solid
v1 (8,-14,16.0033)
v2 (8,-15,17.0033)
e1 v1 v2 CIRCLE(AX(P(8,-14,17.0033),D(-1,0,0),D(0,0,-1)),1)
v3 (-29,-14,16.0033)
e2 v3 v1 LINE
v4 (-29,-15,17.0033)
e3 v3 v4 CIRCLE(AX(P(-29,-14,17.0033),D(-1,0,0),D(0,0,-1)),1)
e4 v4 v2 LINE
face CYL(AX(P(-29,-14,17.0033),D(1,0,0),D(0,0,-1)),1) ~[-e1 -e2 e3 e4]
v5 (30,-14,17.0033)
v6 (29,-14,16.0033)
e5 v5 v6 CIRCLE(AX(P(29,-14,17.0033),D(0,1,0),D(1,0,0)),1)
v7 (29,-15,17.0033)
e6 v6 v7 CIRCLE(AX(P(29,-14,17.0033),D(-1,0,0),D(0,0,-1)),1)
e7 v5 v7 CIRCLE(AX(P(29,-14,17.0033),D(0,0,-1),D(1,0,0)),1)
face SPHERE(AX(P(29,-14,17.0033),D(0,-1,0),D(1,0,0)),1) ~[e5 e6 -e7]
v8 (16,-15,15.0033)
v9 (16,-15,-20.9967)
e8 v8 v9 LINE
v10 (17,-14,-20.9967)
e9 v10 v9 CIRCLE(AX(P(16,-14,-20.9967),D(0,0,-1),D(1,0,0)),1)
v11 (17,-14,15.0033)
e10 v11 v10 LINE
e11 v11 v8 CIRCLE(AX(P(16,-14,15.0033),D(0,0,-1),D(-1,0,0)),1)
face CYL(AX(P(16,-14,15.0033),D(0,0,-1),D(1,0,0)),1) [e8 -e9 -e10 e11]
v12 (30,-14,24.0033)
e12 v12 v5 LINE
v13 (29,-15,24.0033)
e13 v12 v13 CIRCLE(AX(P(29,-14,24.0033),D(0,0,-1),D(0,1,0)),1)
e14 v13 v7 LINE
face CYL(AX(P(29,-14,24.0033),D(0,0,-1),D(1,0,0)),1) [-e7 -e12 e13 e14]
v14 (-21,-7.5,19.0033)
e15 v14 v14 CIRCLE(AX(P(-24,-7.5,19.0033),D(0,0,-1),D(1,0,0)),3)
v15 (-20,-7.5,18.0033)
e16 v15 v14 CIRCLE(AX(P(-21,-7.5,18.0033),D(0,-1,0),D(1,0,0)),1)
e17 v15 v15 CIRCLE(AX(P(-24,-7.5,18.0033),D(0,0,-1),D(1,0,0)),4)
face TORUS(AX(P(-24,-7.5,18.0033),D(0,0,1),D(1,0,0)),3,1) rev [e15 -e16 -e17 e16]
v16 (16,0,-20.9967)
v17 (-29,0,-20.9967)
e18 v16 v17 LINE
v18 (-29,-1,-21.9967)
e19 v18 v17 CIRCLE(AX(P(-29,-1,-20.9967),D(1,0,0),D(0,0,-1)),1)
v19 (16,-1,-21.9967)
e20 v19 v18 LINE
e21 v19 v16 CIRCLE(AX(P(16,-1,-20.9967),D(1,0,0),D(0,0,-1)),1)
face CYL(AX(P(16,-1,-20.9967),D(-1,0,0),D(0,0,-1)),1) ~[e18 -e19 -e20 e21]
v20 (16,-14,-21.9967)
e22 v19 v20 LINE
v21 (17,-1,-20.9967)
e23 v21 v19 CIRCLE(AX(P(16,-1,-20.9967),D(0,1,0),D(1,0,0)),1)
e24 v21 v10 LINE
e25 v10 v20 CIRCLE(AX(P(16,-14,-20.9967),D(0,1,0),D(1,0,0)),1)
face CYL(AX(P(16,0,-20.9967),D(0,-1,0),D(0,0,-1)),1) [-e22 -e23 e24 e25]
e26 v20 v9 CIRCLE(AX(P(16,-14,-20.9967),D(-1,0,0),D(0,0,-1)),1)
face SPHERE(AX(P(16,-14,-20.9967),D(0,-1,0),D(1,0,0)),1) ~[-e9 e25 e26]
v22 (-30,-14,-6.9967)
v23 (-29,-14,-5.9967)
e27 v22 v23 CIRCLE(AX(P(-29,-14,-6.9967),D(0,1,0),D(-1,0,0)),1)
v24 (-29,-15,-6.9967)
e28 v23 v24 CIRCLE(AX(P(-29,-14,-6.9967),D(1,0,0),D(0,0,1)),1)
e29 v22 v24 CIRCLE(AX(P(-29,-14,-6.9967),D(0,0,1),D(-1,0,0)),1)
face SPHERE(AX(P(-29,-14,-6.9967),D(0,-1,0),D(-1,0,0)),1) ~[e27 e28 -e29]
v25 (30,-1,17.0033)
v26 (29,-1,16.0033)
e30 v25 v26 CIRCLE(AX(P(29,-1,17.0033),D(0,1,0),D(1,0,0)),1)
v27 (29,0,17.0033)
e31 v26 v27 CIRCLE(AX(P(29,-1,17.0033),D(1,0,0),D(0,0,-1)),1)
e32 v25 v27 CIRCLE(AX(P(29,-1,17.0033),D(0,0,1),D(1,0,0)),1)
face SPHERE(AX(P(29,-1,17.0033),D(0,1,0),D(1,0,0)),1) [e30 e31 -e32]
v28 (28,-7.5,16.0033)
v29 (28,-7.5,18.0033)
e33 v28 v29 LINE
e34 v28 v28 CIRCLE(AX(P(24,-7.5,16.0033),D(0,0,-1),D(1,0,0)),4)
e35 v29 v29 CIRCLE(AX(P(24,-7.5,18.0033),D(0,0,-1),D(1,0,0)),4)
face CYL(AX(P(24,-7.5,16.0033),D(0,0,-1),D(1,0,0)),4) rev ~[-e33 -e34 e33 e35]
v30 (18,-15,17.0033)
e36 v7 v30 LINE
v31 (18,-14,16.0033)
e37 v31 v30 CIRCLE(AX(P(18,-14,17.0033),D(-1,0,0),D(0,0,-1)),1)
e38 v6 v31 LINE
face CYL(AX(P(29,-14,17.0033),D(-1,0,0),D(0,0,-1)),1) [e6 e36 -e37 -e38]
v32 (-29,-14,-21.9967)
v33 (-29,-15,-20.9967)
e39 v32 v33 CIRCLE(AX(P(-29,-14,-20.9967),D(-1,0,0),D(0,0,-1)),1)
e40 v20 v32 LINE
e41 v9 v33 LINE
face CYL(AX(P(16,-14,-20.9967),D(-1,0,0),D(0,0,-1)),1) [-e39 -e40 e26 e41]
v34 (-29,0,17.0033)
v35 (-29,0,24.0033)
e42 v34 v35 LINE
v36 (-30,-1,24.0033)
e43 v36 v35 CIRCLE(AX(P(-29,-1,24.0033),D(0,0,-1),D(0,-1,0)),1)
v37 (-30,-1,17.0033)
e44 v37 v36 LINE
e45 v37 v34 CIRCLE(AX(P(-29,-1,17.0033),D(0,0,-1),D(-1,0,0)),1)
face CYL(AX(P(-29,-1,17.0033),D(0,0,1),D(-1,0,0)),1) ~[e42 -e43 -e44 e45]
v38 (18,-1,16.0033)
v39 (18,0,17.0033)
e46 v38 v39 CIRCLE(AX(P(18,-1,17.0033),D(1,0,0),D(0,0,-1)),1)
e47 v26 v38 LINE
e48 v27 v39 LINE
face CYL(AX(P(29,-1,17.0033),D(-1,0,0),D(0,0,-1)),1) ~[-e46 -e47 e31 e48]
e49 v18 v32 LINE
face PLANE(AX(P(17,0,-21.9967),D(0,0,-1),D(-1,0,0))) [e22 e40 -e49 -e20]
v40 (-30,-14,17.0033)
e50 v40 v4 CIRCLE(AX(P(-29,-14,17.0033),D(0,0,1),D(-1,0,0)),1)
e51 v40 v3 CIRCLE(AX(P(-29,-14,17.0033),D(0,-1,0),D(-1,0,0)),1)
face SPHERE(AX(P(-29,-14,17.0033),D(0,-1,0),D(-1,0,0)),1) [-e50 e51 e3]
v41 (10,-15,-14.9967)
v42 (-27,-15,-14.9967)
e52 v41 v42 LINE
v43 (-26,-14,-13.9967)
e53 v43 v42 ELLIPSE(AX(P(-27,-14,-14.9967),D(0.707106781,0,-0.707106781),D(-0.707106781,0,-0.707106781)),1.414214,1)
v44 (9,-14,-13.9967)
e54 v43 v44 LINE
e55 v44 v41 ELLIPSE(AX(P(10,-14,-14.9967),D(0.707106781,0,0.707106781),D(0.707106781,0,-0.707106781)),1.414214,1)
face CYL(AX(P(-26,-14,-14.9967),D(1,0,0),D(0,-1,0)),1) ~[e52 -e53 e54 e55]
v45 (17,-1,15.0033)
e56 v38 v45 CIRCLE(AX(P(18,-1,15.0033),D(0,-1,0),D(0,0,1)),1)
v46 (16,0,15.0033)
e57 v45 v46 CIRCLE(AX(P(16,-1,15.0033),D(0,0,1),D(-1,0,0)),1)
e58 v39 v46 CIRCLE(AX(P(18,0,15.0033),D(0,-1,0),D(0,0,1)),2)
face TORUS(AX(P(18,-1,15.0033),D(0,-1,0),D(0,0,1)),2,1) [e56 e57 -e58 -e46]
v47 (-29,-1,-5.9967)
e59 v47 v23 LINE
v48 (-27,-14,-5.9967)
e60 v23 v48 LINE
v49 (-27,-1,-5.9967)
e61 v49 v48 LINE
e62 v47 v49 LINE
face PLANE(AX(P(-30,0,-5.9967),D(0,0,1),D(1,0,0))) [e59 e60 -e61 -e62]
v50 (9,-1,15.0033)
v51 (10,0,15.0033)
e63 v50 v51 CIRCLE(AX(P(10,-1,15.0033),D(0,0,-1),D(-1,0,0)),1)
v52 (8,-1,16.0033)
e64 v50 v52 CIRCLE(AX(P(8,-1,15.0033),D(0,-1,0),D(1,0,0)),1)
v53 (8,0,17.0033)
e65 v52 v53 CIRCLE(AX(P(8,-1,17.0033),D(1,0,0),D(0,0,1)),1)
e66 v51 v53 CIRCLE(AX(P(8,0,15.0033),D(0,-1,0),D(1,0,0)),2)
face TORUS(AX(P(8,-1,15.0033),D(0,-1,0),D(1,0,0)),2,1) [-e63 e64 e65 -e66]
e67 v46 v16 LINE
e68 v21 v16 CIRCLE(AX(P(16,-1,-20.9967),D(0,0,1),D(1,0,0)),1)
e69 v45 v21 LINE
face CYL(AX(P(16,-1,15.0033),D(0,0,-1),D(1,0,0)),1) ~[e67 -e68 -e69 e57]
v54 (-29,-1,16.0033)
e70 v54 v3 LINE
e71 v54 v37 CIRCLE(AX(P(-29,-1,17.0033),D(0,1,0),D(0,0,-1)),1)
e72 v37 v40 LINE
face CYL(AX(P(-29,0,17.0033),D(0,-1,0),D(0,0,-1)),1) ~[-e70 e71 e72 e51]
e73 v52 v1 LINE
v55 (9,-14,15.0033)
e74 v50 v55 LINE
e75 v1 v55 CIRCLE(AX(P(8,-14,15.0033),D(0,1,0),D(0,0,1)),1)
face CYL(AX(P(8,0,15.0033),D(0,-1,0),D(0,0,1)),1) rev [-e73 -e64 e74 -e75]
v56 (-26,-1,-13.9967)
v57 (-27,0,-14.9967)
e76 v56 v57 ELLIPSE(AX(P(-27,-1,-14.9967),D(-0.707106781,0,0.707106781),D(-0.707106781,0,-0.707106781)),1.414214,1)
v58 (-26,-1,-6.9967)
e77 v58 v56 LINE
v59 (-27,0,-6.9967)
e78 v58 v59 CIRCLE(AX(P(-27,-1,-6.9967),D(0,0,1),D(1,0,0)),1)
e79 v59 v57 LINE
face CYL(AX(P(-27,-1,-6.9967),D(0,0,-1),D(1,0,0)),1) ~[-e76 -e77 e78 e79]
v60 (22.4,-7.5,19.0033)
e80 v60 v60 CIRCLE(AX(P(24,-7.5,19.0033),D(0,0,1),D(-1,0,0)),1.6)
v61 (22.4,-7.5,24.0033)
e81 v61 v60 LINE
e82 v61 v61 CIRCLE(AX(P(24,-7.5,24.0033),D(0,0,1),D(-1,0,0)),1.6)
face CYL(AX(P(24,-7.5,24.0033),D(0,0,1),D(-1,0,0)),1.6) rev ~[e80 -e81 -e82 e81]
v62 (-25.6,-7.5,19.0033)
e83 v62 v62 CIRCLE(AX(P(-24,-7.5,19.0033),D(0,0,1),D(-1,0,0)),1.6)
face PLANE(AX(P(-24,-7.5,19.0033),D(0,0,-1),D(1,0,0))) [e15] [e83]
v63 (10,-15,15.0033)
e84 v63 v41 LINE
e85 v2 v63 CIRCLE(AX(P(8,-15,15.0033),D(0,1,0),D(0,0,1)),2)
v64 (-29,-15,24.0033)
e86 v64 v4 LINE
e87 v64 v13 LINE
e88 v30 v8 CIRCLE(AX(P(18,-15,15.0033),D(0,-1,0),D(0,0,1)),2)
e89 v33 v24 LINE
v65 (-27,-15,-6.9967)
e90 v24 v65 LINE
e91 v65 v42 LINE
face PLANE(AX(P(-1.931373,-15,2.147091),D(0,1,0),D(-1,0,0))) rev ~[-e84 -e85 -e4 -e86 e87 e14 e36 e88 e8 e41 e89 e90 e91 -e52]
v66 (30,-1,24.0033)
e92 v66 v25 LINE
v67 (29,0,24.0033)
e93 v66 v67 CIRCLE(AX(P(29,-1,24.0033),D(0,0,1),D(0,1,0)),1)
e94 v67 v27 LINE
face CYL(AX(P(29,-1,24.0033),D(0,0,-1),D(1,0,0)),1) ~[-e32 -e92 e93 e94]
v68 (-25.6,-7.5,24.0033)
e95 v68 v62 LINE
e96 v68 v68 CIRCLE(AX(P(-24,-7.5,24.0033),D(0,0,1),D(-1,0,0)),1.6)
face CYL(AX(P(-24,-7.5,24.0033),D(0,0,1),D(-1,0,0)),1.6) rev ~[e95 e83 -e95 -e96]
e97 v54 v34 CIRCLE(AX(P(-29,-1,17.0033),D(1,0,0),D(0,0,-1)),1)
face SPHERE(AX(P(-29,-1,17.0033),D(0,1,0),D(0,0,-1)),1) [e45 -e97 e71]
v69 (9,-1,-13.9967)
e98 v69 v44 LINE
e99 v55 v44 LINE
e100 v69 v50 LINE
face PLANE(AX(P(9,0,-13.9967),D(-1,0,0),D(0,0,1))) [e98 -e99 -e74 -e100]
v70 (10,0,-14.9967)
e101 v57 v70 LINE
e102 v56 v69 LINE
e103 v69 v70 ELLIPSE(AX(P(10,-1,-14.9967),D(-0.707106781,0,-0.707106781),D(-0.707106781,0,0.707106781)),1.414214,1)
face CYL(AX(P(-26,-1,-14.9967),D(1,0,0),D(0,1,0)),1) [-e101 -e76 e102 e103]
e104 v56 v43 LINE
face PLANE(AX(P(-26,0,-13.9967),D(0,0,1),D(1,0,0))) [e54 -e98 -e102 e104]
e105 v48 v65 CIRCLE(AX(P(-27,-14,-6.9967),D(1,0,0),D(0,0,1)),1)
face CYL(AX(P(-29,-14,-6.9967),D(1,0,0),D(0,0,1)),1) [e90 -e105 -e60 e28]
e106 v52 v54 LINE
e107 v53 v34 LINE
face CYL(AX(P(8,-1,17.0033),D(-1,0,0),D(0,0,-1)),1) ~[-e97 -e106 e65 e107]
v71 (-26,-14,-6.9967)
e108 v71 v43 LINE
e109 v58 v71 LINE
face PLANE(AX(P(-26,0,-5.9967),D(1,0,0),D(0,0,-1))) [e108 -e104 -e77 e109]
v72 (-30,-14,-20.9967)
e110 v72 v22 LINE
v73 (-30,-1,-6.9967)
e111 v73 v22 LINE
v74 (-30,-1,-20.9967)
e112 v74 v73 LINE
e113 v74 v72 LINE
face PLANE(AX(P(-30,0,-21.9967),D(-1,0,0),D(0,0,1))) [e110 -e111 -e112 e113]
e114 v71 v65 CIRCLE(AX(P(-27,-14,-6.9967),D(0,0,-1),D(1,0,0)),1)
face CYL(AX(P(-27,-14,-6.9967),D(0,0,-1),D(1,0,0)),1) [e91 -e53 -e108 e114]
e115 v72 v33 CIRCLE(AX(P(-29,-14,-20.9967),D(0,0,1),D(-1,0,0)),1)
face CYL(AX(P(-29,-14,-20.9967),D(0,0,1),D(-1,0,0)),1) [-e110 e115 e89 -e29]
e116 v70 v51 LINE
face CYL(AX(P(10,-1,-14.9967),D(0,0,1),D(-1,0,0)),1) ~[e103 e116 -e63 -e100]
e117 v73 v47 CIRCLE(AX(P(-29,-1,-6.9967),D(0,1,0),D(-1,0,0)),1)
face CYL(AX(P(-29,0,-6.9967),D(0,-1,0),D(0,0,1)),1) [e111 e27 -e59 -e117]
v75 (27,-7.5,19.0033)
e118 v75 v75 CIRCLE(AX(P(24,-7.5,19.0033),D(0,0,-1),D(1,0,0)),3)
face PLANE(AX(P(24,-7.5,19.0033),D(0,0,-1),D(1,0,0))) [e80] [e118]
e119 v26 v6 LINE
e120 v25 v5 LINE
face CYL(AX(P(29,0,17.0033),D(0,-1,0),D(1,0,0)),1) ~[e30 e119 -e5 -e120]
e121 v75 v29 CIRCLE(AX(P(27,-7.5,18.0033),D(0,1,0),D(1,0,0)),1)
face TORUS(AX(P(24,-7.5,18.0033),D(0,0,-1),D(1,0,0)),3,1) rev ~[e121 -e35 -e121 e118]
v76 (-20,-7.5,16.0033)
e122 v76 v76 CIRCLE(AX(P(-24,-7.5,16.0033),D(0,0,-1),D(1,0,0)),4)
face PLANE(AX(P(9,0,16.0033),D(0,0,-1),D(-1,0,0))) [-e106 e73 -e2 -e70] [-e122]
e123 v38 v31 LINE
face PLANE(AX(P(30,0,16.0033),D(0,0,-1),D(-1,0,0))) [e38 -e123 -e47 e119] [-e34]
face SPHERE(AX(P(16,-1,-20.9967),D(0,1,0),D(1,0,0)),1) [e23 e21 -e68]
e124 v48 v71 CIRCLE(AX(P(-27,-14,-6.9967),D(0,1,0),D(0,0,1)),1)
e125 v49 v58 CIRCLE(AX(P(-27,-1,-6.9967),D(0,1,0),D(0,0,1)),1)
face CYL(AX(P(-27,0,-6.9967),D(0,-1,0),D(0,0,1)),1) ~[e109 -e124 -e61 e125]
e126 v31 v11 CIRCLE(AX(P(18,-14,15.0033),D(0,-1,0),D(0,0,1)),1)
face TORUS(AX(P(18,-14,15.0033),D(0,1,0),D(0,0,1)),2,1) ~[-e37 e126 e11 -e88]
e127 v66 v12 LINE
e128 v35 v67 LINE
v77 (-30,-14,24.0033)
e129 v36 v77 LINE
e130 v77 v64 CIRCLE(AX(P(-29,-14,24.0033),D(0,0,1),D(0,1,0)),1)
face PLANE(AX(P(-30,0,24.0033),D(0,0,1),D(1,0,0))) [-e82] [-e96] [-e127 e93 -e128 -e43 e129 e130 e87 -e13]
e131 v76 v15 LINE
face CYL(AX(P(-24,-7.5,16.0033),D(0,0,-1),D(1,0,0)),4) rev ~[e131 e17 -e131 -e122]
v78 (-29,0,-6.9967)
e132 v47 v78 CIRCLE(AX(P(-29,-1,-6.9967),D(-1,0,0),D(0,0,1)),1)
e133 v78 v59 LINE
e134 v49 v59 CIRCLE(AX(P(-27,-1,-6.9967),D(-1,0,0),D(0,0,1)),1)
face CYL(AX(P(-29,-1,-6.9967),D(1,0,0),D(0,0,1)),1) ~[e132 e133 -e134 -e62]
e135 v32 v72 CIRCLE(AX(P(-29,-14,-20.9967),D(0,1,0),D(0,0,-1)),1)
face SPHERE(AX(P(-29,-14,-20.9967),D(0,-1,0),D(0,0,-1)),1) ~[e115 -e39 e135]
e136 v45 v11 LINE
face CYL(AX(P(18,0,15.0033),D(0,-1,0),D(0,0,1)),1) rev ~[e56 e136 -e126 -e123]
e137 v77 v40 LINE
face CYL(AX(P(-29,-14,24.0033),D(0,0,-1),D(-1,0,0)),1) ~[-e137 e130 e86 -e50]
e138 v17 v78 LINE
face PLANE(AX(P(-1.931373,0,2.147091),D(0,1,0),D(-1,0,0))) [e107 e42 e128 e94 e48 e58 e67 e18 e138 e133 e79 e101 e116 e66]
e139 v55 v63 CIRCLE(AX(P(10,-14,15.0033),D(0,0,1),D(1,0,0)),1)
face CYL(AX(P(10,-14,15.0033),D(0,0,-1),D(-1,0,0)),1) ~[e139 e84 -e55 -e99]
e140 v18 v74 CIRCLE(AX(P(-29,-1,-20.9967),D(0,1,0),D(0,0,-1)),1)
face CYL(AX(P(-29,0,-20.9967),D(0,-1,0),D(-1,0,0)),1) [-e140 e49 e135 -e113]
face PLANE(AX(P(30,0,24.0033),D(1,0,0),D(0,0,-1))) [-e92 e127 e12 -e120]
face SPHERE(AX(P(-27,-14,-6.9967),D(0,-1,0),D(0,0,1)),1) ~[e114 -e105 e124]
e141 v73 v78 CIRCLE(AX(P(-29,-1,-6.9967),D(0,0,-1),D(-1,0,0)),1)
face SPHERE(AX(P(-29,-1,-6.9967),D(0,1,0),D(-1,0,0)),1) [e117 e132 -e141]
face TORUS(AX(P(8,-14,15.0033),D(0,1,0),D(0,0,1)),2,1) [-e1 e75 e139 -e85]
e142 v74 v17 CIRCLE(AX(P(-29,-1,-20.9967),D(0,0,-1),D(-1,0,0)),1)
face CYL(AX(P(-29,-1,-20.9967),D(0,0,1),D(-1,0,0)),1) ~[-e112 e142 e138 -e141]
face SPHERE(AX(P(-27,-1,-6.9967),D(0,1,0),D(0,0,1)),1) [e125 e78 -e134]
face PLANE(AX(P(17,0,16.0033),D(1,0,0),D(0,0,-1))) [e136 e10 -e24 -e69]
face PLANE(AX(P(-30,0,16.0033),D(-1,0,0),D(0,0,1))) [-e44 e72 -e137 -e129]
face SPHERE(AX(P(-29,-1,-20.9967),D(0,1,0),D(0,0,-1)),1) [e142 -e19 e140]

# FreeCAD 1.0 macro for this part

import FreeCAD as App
import Part
import Sketcher


def edges_at(feature, points):
    """Names of the edges that pass closest to the given points."""
    edges = feature.Shape.Edges
    near = lambda p: min(range(len(edges)), key=lambda i: edges[i].distToShape(Part.Vertex(*p))[0])
    return sorted({f"Edge{near(p) + 1}" for p in points})


def add_polygon(sketch, points):
    """Adds a closed chain of lines whose ends are joined by coincident constraints."""
    first, n = sketch.GeometryCount, len(points)
    for a, b in zip(points, points[1:] + points[:1]):
        sketch.addGeometry(Part.LineSegment(App.Vector(*a, 0), App.Vector(*b, 0)), False)
    for i in range(n):
        sketch.addConstraint(Sketcher.Constraint("Coincident", first + i, 2, first + (i + 1) % n, 1))

doc = App.newDocument("Part")
params = doc.addObject("Spreadsheet::Sheet", "Params")
for row, (alias, value) in enumerate([
    ("sketch1_width", "60 mm"),
    ("sketch1_width2", "39 mm"),
    ("sketch1_width3", "35 mm"),
    ("sketch1_width4", "47 mm"),
    ("sketch1_height", "8 mm"),
    ("pad1_length", "15 mm"),
    ("sketch2_diameter", "3.2 mm"),
    ("pocket1_length", "8 mm"),
    ("sketch3_diameter", "8 mm"),
    ("pocket2_length", "3 mm"),
    ("fillet_radius", "1 mm"),
    ("fillet2_radius", "1 mm"),
    ("fillet3_radius", "1 mm"),
    ("fillet4_radius", "1 mm"),
    ("fillet5_radius", "1 mm"),
    ("fillet6_radius", "1 mm"),
    ("fillet7_radius", "1 mm"),
    ("fillet8_radius", "1 mm"),
    ("fillet9_radius", "1 mm"),
    ("fillet10_radius", "1 mm"),
    ("fillet11_radius", "1 mm"),
    ("fillet12_radius", "1 mm"),
    ("fillet13_radius", "1 mm"),
    ("fillet14_radius", "1 mm"),
    ("fillet15_radius", "1 mm"),
    ("fillet16_radius", "1 mm"),
], start=1):
    params.set(f"A{row}", alias)
    params.set(f"B{row}", "=" + value)
    params.setAlias(f"B{row}", alias)

body = doc.addObject("PartDesign::Body", "Body")

sketch1 = doc.addObject("Sketcher::SketchObject", "Sketch")
body.addObject(sketch1)
sketch1.AttachmentSupport = (doc.XZ_Plane, [""])
sketch1.MapMode = "FlatFace"
add_polygon(sketch1, [(30, 24), (-30, 24), (-30, 16), (9, 16), (9, -14), (-26, -14), (-26, -6), (-30, -6), (-30, -22), (17, -22), (17, 16), (30, 16)])
sketch1.addConstraint([
    Sketcher.Constraint("Horizontal", 0),
    Sketcher.Constraint("Vertical", 1),
    Sketcher.Constraint("Horizontal", 2),
    Sketcher.Constraint("Vertical", 3),
    Sketcher.Constraint("Horizontal", 4),
    Sketcher.Constraint("Vertical", 5),
    Sketcher.Constraint("Horizontal", 6),
    Sketcher.Constraint("Vertical", 7),
    Sketcher.Constraint("Horizontal", 8),
    Sketcher.Constraint("Vertical", 9),
    Sketcher.Constraint("Horizontal", 10),
    Sketcher.Constraint("Vertical", 11),
    Sketcher.Constraint("Symmetric", 1, 2, 10, 2, -2),
    Sketcher.Constraint("Vertical", 1, 2, 6, 2),
    Sketcher.Constraint("Equal", 1, 5),
    Sketcher.Constraint("DistanceX", 0, 2, 0, 1, 60.0),
    Sketcher.Constraint("DistanceX", 2, 1, 2, 2, 39.0),
    Sketcher.Constraint("DistanceX", 4, 2, 4, 1, 35.0),
    Sketcher.Constraint("DistanceX", 8, 1, 8, 2, 47.0),
    Sketcher.Constraint("DistanceY", 1, 2, 1, 1, 8.0),
    Sketcher.Constraint("DistanceY", 3, 2, 3, 1, 30.0),
    Sketcher.Constraint("DistanceY", 7, 2, 7, 1, 16.0),
    Sketcher.Constraint("DistanceY", -1, 1, 0, 2, 24.0033),
])
sketch1.setExpression("Constraints[27]", "Params.sketch1_width")
sketch1.setExpression("Constraints[28]", "Params.sketch1_width2")
sketch1.setExpression("Constraints[29]", "Params.sketch1_width3")
sketch1.setExpression("Constraints[30]", "Params.sketch1_width4")
sketch1.setExpression("Constraints[31]", "Params.sketch1_height")
pad1 = doc.addObject("PartDesign::Pad", "Pad")
body.addObject(pad1)
pad1.Profile = sketch1
pad1.setExpression("Length", "Params.pad1_length")

sketch2 = doc.addObject("Sketcher::SketchObject", "Sketch001")
body.addObject(sketch2)
sketch2.AttachmentSupport = (doc.XY_Plane, [""])
sketch2.MapMode = "FlatFace"
sketch2.AttachmentOffset = App.Placement(App.Vector(0, 0, 24.0033), App.Rotation())
sketch2.addGeometry([
    Part.Circle(App.Vector(24, -7.5, 0), App.Vector(0, 0, 1), 1.6),
    Part.Circle(App.Vector(-24, -7.5, 0), App.Vector(0, 0, 1), 1.6),
], False)
sketch2.addConstraint([
    Sketcher.Constraint("Equal", 0, 1),
    Sketcher.Constraint("Symmetric", 0, 3, 1, 3, -2),
    Sketcher.Constraint("Diameter", 0, 3.2),
    Sketcher.Constraint("DistanceX", -1, 1, 0, 3, 24.0),
    Sketcher.Constraint("DistanceY", 0, 3, -1, 1, 7.5),
])
sketch2.setExpression("Constraints[2]", "Params.sketch2_diameter")
pocket1 = doc.addObject("PartDesign::Pocket", "Pocket")
body.addObject(pocket1)
pocket1.Profile = sketch2
pocket1.setExpression("Length", "Params.pocket1_length")

sketch3 = doc.addObject("Sketcher::SketchObject", "Sketch002")
body.addObject(sketch3)
sketch3.AttachmentSupport = (doc.XY_Plane, [""])
sketch3.MapMode = "FlatFace"
sketch3.AttachmentOffset = App.Placement(App.Vector(0, 0, 16.0033), App.Rotation())
sketch3.addGeometry([
    Part.Circle(App.Vector(24, -7.5, 0), App.Vector(0, 0, 1), 4),
    Part.Circle(App.Vector(-24, -7.5, 0), App.Vector(0, 0, 1), 4),
], False)
sketch3.addConstraint([
    Sketcher.Constraint("Equal", 0, 1),
    Sketcher.Constraint("Symmetric", 0, 3, 1, 3, -2),
    Sketcher.Constraint("Diameter", 0, 8.0),
    Sketcher.Constraint("DistanceX", -1, 1, 0, 3, 24.0),
    Sketcher.Constraint("DistanceY", 0, 3, -1, 1, 7.5),
])
sketch3.setExpression("Constraints[2]", "Params.sketch3_diameter")
pocket2 = doc.addObject("PartDesign::Pocket", "Pocket001")
body.addObject(pocket2)
pocket2.Profile = sketch3
pocket2.setExpression("Length", "Params.pocket2_length")
pocket2.Reversed = True
doc.recompute()

fillet = doc.addObject("PartDesign::Fillet", "Fillet")
body.addObject(fillet)
fillet.Base = (pocket2, edges_at(pocket2, [(-8.5, -15, -13.997)]))
fillet.setExpression("Radius", "Params.fillet_radius")
doc.recompute()

fillet2 = doc.addObject("PartDesign::Fillet", "Fillet001")
body.addObject(fillet2)
fillet2.Base = (fillet, edges_at(fillet, [(-26, -7.5, -5.997)]))
fillet2.setExpression("Radius", "Params.fillet2_radius")
doc.recompute()

fillet3 = doc.addObject("PartDesign::Fillet", "Fillet002")
body.addObject(fillet3)
fillet3.Base = (fillet2, edges_at(fillet2, [(-30, -7.5, -5.997)]))
fillet3.setExpression("Radius", "Params.fillet3_radius")
doc.recompute()

fillet4 = doc.addObject("PartDesign::Fillet", "Fillet003")
body.addObject(fillet4)
fillet4.Base = (fillet3, edges_at(fillet3, [(-30, -7.5, -21.997)]))
fillet4.setExpression("Radius", "Params.fillet4_radius")
doc.recompute()

fillet5 = doc.addObject("PartDesign::Fillet", "Fillet004")
body.addObject(fillet5)
fillet5.Base = (fillet4, edges_at(fillet4, [(17, -7.5, -21.997)]))
fillet5.setExpression("Radius", "Params.fillet5_radius")
doc.recompute()

fillet6 = doc.addObject("PartDesign::Fillet", "Fillet005")
body.addObject(fillet6)
fillet6.Base = (fillet5, edges_at(fillet5, [(-8.5, 0, -13.997)]))
fillet6.setExpression("Radius", "Params.fillet6_radius")
doc.recompute()

fillet7 = doc.addObject("PartDesign::Fillet", "Fillet006")
body.addObject(fillet7)
fillet7.Base = (fillet6, edges_at(fillet6, [(17, -7.5, 16.003)]))
fillet7.setExpression("Radius", "Params.fillet7_radius")
doc.recompute()

fillet8 = doc.addObject("PartDesign::Fillet", "Fillet007")
body.addObject(fillet8)
fillet8.Base = (fillet7, edges_at(fillet7, [(9, -7.5, 16.003)]))
fillet8.setExpression("Radius", "Params.fillet8_radius")
doc.recompute()

fillet9 = doc.addObject("PartDesign::Fillet", "Fillet008")
body.addObject(fillet9)
fillet9.Base = (fillet8, edges_at(fillet8, [(-30, -7.5, 16.003)]))
fillet9.setExpression("Radius", "Params.fillet9_radius")
doc.recompute()

fillet10 = doc.addObject("PartDesign::Fillet", "Fillet009")
body.addObject(fillet10)
fillet10.Base = (fillet9, edges_at(fillet9, [(30, -7.5, 16.003)]))
fillet10.setExpression("Radius", "Params.fillet10_radius")
doc.recompute()

fillet11 = doc.addObject("PartDesign::Fillet", "Fillet010")
body.addObject(fillet11)
fillet11.Base = (fillet10, edges_at(fillet10, [(9, -15, 0.003)]))
fillet11.setExpression("Radius", "Params.fillet11_radius")
doc.recompute()

fillet12 = doc.addObject("PartDesign::Fillet", "Fillet011")
body.addObject(fillet12)
fillet12.Base = (fillet11, edges_at(fillet11, [(9, 0, 0.003)]))
fillet12.setExpression("Radius", "Params.fillet12_radius")
doc.recompute()

fillet13 = doc.addObject("PartDesign::Fillet", "Fillet012")
body.addObject(fillet13)
fillet13.Base = (fillet12, edges_at(fillet12, [(17, -15, -2.997)]))
fillet13.setExpression("Radius", "Params.fillet13_radius")
doc.recompute()

fillet14 = doc.addObject("PartDesign::Fillet", "Fillet013")
body.addObject(fillet14)
fillet14.Base = (fillet13, edges_at(fillet13, [(17, 0, -2.997)]))
fillet14.setExpression("Radius", "Params.fillet14_radius")
doc.recompute()

fillet15 = doc.addObject("PartDesign::Fillet", "Fillet014")
body.addObject(fillet15)
fillet15.Base = (fillet14, edges_at(fillet14, [(-28, -7.5, 19.003)]))
fillet15.setExpression("Radius", "Params.fillet15_radius")
doc.recompute()

fillet16 = doc.addObject("PartDesign::Fillet", "Fillet015")
body.addObject(fillet16)
fillet16.Base = (fillet15, edges_at(fillet15, [(20, -7.5, 19.003)]))
fillet16.setExpression("Radius", "Params.fillet16_radius")

doc.recompute()
